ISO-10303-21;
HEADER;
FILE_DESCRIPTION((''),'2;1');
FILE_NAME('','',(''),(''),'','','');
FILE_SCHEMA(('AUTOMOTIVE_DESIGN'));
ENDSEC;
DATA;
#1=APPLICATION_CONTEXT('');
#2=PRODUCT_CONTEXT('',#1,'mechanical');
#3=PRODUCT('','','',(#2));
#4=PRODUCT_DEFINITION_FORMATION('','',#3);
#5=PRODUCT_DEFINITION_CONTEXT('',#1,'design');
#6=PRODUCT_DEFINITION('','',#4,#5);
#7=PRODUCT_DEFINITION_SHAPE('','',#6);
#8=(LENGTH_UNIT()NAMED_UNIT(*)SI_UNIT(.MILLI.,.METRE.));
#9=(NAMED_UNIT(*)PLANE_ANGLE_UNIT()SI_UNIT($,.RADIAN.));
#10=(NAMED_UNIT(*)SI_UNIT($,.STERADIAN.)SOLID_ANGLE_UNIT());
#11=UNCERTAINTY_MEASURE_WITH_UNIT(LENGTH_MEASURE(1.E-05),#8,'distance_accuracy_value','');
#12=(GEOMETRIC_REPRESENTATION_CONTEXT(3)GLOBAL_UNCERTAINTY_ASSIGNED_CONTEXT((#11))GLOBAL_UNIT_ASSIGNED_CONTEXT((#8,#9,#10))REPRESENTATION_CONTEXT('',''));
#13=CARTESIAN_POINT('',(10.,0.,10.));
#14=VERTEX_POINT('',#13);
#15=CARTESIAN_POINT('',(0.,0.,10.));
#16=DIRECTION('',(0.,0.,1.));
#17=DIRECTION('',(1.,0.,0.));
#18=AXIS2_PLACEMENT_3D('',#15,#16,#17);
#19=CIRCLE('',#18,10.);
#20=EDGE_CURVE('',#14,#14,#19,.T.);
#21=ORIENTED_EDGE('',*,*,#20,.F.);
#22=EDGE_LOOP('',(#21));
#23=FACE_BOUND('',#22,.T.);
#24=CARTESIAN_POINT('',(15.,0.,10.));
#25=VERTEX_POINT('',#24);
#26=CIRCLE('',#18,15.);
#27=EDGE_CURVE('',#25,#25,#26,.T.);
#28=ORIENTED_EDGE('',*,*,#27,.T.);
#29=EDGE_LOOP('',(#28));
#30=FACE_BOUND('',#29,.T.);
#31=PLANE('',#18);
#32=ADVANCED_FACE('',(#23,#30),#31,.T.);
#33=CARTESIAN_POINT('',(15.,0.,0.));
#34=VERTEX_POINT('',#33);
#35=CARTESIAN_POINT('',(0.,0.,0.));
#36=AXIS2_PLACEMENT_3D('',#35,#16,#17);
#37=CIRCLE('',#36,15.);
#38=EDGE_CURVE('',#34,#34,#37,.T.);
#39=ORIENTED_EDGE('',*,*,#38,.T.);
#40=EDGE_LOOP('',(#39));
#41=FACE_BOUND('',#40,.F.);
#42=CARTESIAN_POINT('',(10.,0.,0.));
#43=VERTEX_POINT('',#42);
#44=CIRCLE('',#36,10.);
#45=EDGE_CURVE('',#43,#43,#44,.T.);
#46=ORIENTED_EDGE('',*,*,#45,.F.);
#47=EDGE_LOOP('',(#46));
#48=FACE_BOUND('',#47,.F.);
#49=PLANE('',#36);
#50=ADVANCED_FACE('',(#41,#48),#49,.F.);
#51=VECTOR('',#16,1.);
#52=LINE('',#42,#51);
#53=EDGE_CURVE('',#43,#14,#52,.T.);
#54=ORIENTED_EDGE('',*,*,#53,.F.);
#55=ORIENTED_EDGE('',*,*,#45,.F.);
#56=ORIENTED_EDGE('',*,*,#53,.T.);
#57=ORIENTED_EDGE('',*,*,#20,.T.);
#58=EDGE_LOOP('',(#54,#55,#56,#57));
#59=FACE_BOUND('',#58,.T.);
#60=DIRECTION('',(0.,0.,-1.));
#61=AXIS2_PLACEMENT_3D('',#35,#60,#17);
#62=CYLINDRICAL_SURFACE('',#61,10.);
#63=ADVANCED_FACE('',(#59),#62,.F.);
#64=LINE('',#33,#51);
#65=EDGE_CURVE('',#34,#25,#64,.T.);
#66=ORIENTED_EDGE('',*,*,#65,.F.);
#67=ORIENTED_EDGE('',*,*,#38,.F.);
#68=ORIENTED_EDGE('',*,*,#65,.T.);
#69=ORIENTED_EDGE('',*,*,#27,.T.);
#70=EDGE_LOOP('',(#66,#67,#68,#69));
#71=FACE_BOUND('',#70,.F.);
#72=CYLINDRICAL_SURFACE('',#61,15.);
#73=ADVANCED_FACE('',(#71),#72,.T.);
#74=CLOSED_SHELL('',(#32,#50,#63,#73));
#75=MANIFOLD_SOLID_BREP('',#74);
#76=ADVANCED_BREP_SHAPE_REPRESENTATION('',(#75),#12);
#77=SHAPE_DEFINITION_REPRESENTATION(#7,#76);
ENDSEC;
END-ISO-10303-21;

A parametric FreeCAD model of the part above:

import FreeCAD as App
import Part
import Sketcher

V = App.Vector

doc = App.newDocument("Part")
params = doc.addObject("Spreadsheet::Sheet", "Params")
for row, (alias, value) in enumerate([
    ("sketch1_diameter", "30 mm"),
    ("sketch1_diameter2", "20 mm"),
    ("pad1_length", "10 mm"),
], start=1):
    params.set(f"A{row}", alias)
    params.set(f"B{row}", "=" + value)
    params.setAlias(f"B{row}", alias)

body = doc.addObject("PartDesign::Body", "Body")

sketch1 = body.newObject("Sketcher::SketchObject", "Sketch")
sketch1.AttachmentSupport = (doc.getObject("XY_Plane"), [""])
sketch1.MapMode = "FlatFace"
sketch1.addGeometry(Part.Circle(V(0, 0, 0), V(0, 0, 1), 15), False)
sketch1.addGeometry(Part.Circle(V(0, 0, 0), V(0, 0, 1), 10), False)
sketch1.addConstraint(Sketcher.Constraint("Coincident", 0, 3, -1, 1))
sketch1.addConstraint(Sketcher.Constraint("Coincident", 1, 3, -1, 1))
sketch1.addConstraint(Sketcher.Constraint("Diameter", 0, 30.0))
sketch1.addConstraint(Sketcher.Constraint("Diameter", 1, 20.0))
sketch1.setExpression("Constraints[2]", "Params.sketch1_diameter")
sketch1.setExpression("Constraints[3]", "Params.sketch1_diameter2")
pad1 = body.newObject("PartDesign::Pad", "Pad")
pad1.Profile = sketch1
pad1.setExpression("Length", "Params.pad1_length")

doc.recompute()
